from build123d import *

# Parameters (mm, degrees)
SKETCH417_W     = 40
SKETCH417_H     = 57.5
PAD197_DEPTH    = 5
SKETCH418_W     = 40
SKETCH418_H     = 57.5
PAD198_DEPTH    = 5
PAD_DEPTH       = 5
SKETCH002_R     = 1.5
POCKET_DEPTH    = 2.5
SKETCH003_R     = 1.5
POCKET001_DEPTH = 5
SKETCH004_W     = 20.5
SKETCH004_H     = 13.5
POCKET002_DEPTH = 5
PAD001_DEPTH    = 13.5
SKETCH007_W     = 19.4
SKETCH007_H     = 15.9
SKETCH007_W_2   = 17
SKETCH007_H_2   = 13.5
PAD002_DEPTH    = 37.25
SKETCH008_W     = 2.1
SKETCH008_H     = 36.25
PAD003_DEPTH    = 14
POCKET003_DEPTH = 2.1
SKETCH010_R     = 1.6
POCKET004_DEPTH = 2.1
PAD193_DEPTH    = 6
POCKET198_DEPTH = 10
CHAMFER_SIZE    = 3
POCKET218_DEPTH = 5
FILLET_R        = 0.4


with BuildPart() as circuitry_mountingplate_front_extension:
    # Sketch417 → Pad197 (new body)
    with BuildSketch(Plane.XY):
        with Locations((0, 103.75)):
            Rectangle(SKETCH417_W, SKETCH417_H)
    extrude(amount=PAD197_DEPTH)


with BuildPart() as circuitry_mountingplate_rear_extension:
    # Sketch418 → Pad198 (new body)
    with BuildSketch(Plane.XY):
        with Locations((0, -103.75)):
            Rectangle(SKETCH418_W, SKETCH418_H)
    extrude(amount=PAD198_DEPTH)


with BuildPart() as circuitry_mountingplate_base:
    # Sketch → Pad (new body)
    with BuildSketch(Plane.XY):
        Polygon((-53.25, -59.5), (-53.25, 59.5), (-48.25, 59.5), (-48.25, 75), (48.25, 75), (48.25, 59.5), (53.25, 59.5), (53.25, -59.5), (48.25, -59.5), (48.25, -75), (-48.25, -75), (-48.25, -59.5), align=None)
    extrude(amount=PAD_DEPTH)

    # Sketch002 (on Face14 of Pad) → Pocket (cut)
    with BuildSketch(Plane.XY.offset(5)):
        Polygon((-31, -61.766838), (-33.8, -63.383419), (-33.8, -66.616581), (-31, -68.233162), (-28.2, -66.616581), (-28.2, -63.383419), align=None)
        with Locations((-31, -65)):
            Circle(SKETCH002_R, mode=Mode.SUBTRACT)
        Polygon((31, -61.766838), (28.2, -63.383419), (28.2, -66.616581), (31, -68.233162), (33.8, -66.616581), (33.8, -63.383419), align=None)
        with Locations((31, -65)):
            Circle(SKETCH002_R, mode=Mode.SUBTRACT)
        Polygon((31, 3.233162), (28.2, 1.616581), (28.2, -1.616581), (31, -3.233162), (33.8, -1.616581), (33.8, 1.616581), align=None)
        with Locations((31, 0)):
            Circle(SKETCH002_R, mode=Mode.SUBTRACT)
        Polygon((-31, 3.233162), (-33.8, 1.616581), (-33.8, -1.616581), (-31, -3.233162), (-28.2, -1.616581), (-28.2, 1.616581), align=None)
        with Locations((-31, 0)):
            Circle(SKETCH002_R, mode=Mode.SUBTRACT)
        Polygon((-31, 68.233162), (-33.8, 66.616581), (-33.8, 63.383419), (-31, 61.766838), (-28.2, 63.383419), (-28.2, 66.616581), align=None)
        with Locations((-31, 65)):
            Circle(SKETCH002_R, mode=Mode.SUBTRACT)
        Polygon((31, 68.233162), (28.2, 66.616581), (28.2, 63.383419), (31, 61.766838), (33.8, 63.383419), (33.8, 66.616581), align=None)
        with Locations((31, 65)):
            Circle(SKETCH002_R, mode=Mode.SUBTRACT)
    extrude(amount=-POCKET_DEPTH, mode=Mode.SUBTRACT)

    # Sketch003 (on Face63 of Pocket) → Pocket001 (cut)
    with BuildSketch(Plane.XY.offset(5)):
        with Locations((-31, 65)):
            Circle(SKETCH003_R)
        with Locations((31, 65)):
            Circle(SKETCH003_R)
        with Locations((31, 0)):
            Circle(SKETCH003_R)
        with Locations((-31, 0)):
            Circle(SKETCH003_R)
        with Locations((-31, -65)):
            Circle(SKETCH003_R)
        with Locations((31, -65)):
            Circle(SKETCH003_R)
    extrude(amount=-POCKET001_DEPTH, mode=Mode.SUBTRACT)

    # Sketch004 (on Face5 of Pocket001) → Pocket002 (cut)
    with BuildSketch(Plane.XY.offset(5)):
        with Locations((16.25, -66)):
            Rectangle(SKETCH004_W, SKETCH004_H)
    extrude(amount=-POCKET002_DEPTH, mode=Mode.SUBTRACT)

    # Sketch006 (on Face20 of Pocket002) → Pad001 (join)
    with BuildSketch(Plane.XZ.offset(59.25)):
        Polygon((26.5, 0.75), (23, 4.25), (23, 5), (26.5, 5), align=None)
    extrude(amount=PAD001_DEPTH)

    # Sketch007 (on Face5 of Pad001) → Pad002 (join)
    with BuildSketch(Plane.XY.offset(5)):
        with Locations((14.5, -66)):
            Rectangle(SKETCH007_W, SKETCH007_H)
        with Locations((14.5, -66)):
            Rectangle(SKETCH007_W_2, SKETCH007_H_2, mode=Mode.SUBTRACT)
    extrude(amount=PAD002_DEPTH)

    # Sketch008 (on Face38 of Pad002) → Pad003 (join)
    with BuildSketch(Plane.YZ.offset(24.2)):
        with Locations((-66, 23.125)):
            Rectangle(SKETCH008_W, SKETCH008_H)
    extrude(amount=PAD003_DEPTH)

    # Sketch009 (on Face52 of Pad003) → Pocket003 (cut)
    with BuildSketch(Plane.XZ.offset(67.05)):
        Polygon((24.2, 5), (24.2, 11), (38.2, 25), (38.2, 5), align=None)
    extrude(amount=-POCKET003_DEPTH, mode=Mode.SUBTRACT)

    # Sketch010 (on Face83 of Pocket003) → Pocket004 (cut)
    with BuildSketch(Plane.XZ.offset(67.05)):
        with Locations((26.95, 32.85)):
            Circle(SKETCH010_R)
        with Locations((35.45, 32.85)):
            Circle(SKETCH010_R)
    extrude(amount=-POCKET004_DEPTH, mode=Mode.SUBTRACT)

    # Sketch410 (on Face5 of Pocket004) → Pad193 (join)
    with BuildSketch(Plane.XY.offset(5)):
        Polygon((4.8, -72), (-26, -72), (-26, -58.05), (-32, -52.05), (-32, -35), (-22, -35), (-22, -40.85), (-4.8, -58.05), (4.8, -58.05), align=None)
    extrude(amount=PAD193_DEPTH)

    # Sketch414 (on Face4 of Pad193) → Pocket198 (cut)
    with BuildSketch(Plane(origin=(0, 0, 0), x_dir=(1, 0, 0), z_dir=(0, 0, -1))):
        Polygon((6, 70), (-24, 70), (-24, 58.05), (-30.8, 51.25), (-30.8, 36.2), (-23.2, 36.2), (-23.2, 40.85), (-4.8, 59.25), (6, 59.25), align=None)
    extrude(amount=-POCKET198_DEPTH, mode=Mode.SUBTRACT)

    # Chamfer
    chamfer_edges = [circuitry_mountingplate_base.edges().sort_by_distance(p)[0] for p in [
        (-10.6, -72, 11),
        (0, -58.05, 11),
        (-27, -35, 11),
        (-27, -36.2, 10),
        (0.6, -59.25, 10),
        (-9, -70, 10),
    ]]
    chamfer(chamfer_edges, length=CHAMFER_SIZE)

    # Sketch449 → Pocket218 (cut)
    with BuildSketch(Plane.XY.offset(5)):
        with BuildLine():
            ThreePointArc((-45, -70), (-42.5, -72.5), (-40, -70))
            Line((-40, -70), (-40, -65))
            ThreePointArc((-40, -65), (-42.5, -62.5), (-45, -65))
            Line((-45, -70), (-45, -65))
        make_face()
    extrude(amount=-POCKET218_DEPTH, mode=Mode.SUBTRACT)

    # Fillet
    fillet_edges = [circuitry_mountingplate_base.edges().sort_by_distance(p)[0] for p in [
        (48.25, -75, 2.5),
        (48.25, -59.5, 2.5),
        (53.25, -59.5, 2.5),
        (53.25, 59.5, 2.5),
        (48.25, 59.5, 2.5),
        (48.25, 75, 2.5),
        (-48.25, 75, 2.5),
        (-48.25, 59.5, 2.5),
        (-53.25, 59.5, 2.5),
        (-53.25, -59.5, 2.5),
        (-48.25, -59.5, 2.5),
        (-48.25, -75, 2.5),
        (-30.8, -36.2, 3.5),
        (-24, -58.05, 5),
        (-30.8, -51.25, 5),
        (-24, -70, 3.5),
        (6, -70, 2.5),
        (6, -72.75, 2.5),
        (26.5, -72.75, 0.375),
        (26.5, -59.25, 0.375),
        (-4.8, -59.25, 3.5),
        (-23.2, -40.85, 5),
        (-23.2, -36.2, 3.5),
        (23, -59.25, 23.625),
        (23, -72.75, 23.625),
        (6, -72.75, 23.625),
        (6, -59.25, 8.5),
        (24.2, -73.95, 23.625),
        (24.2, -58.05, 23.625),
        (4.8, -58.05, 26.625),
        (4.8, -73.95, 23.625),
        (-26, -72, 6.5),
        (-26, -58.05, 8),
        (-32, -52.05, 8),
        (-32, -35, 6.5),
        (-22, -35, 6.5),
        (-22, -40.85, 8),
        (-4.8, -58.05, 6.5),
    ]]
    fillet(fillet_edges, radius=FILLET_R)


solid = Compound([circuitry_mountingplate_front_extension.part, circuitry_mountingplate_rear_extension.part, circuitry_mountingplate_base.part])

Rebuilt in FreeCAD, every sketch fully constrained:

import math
import FreeCAD as App
import Part
import Sketcher
Q = App.Units.Quantity


def edges_at(feature, points):
    """Names of the edges that pass closest to the given points."""
    edges = feature.Shape.Edges
    near = lambda p: min(range(len(edges)), key=lambda i: edges[i].distToShape(Part.Vertex(*p))[0])
    return sorted({f"Edge{near(p) + 1}" for p in points})


def add_polygon(sketch, points):
    """Adds a closed chain of lines whose ends are joined by coincident constraints."""
    first, n = sketch.GeometryCount, len(points)
    for a, b in zip(points, points[1:] + points[:1]):
        sketch.addGeometry(Part.LineSegment(App.Vector(*a, 0), App.Vector(*b, 0)), False)
    for i in range(n):
        sketch.addConstraint(Sketcher.Constraint("Coincident", first + i, 2, first + (i + 1) % n, 1))

doc = App.newDocument("Part")
params = doc.addObject("Spreadsheet::Sheet", "Params")
for row, (alias, value) in enumerate([
    ("sketch1_width", "40 mm"),
    ("sketch1_height", "57.5 mm"),
    ("pad1_length", "5 mm"),
    ("sketch2_width", "40 mm"),
    ("sketch2_height", "57.5 mm"),
    ("pad2_length", "5 mm"),
    ("sketch3_width", "5 mm"),
    ("sketch3_height", "119 mm"),
    ("sketch3_width2", "96.5 mm"),
    ("sketch3_height2", "15.5 mm"),
    ("pad3_length", "5 mm"),
    ("sketch4_diameter", "3 mm"),
    ("pocket1_length", "2.5 mm"),
    ("sketch5_diameter", "3 mm"),
    ("pocket2_length", "5 mm"),
    ("sketch6_width", "20.5 mm"),
    ("sketch6_height", "13.5 mm"),
    ("pocket3_length", "5 mm"),
    ("sketch7_width", "3.5 mm"),
    ("sketch7_height", "4.25 mm"),
    ("pad4_length", "13.5 mm"),
    ("sketch8_width", "17 mm"),
    ("sketch8_width2", "19.4 mm"),
    ("sketch8_height", "15.9 mm"),
    ("sketch8_height2", "13.5 mm"),
    ("pad5_length", "37.25 mm"),
    ("sketch9_width", "2.1 mm"),
    ("sketch9_height", "36.25 mm"),
    ("pad6_length", "14 mm"),
    ("sketch10_width", "14 mm"),
    ("sketch10_height", "6 mm"),
    ("sketch10_height2", "20 mm"),
    ("pocket4_length", "2.1 mm"),
    ("sketch11_diameter", "3.2 mm"),
    ("pocket5_length", "2.1 mm"),
    ("sketch12_width", "10 mm"),
    ("sketch12_width2", "30.8 mm"),
    ("sketch12_width3", "9.6 mm"),
    ("sketch12_height", "13.95 mm"),
    ("pad7_length", "6 mm"),
    ("sketch13_width", "30 mm"),
    ("sketch13_width2", "7.6 mm"),
    ("sketch13_width3", "10.8 mm"),
    ("sketch13_height", "11.95 mm"),
    ("sketch13_height2", "15.05 mm"),
    ("pocket6_length", "10 mm"),
    ("chamfer_size", "3 mm"),
    ("sketch14_radius", "2.5 mm"),
    ("sketch14_height", "5 mm"),
    ("pocket7_length", "5 mm"),
    ("fillet_radius", "0.4 mm"),
], start=1):
    params.set(f"A{row}", alias)
    params.set(f"B{row}", "=" + value)
    params.setAlias(f"B{row}", alias)

body = doc.addObject("PartDesign::Body", "Body")

sketch1 = body.newObject("Sketcher::SketchObject", "Sketch")
sketch1.AttachmentSupport = (doc.getObject("XY_Plane"), [""])
sketch1.MapMode = "FlatFace"
add_polygon(sketch1, [(-20, 132.5), (-20, 75), (20, 75), (20, 132.5)])
sketch1.addConstraint([
    Sketcher.Constraint("Vertical", 0),
    Sketcher.Constraint("Horizontal", 1),
    Sketcher.Constraint("Vertical", 2),
    Sketcher.Constraint("Horizontal", 3),
    Sketcher.Constraint("DistanceX", 1, 1, 1, 2, 40.0),
    Sketcher.Constraint("DistanceY", 0, 2, 0, 1, 57.5),
    Sketcher.Constraint("DistanceX", 0, 2, -1, 1, 20.0),
    Sketcher.Constraint("DistanceY", -1, 1, 0, 2, 75.0),
])
sketch1.setExpression("Constraints[8]", "Params.sketch1_width")
sketch1.setExpression("Constraints[9]", "Params.sketch1_height")
pad1 = body.newObject("PartDesign::Pad", "Pad")
pad1.Profile = sketch1
pad1.setExpression("Length", "Params.pad1_length")
body2 = doc.addObject("PartDesign::Body", "Body001")

sketch2 = body2.newObject("Sketcher::SketchObject", "Sketch001")
sketch2.AttachmentSupport = (doc.getObject("XY_Plane001"), [""])
sketch2.MapMode = "FlatFace"
add_polygon(sketch2, [(-20, -75), (-20, -132.5), (20, -132.5), (20, -75)])
sketch2.addConstraint([
    Sketcher.Constraint("Vertical", 0),
    Sketcher.Constraint("Horizontal", 1),
    Sketcher.Constraint("Vertical", 2),
    Sketcher.Constraint("Horizontal", 3),
    Sketcher.Constraint("DistanceX", 1, 1, 1, 2, 40.0),
    Sketcher.Constraint("DistanceY", 0, 2, 0, 1, 57.5),
    Sketcher.Constraint("DistanceX", 0, 2, -1, 1, 20.0),
    Sketcher.Constraint("DistanceY", 2, 2, -1, 1, 75.0),
])
sketch2.setExpression("Constraints[8]", "Params.sketch2_width")
sketch2.setExpression("Constraints[9]", "Params.sketch2_height")
pad2 = body2.newObject("PartDesign::Pad", "Pad001")
pad2.Profile = sketch2
pad2.setExpression("Length", "Params.pad2_length")
body3 = doc.addObject("PartDesign::Body", "Body002")

sketch3 = body3.newObject("Sketcher::SketchObject", "Sketch002")
sketch3.AttachmentSupport = (doc.getObject("XY_Plane002"), [""])
sketch3.MapMode = "FlatFace"
add_polygon(sketch3, [(-53.25, 59.5), (-53.25, -59.5), (-48.25, -59.5), (-48.25, -75), (48.25, -75), (48.25, -59.5), (53.25, -59.5), (53.25, 59.5), (48.25, 59.5), (48.25, 75), (-48.25, 75), (-48.25, 59.5)])
sketch3.addConstraint([
    Sketcher.Constraint("Vertical", 0),
    Sketcher.Constraint("Horizontal", 1),
    Sketcher.Constraint("Vertical", 2),
    Sketcher.Constraint("Horizontal", 3),
    Sketcher.Constraint("Vertical", 4),
    Sketcher.Constraint("Horizontal", 5),
    Sketcher.Constraint("Vertical", 6),
    Sketcher.Constraint("Horizontal", 7),
    Sketcher.Constraint("Vertical", 8),
    Sketcher.Constraint("Horizontal", 9),
    Sketcher.Constraint("Vertical", 10),
    Sketcher.Constraint("Horizontal", 11),
    Sketcher.Constraint("Symmetric", 0, 2, 6, 2, -1, 1),
    Sketcher.Constraint("Symmetric", 2, 2, 8, 2, -1, 1),
    Sketcher.Constraint("Symmetric", 4, 2, 10, 2, -1, 1),
    Sketcher.Constraint("Symmetric", 1, 2, 4, 2, -2),
    Sketcher.Constraint("DistanceX", 1, 1, 1, 2, 5.0),
    Sketcher.Constraint("DistanceY", 0, 2, 0, 1, 119.0),
    Sketcher.Constraint("DistanceX", 3, 1, 3, 2, 96.5),
    Sketcher.Constraint("DistanceY", 2, 2, 2, 1, 15.5),
])
sketch3.setExpression("Constraints[28]", "Params.sketch3_width")
sketch3.setExpression("Constraints[29]", "Params.sketch3_height")
sketch3.setExpression("Constraints[30]", "Params.sketch3_width2")
sketch3.setExpression("Constraints[31]", "Params.sketch3_height2")
pad3 = body3.newObject("PartDesign::Pad", "Pad002")
pad3.Profile = sketch3
pad3.setExpression("Length", "Params.pad3_length")

sketch4 = body3.newObject("Sketcher::SketchObject", "Sketch003")
sketch4.AttachmentSupport = (doc.getObject("XY_Plane002"), [""])
sketch4.MapMode = "FlatFace"
sketch4.AttachmentOffset = App.Placement(App.Vector(0, 0, 5), App.Rotation())
add_polygon(sketch4, [(-31, -61.766838), (-33.8, -63.383419), (-33.8, -66.616581), (-31, -68.233162), (-28.2, -66.616581), (-28.2, -63.383419)])
sketch4.addGeometry(Part.Circle(App.Vector(-31, -65, 0), App.Vector(0, 0, 1), 1.5), False)
add_polygon(sketch4, [(31, -61.766838), (28.2, -63.383419), (28.2, -66.616581), (31, -68.233162), (33.8, -66.616581), (33.8, -63.383419)])
sketch4.addGeometry(Part.Circle(App.Vector(31, -65, 0), App.Vector(0, 0, 1), 1.5), False)
add_polygon(sketch4, [(31, 3.233162), (28.2, 1.616581), (28.2, -1.616581), (31, -3.233162), (33.8, -1.616581), (33.8, 1.616581)])
sketch4.addGeometry(Part.Circle(App.Vector(31, 0, 0), App.Vector(0, 0, 1), 1.5), False)
add_polygon(sketch4, [(-31, 3.233162), (-33.8, 1.616581), (-33.8, -1.616581), (-31, -3.233162), (-28.2, -1.616581), (-28.2, 1.616581)])
sketch4.addGeometry(Part.Circle(App.Vector(-31, 0, 0), App.Vector(0, 0, 1), 1.5), False)
add_polygon(sketch4, [(-31, 68.233162), (-33.8, 66.616581), (-33.8, 63.383419), (-31, 61.766838), (-28.2, 63.383419), (-28.2, 66.616581)])
sketch4.addGeometry(Part.Circle(App.Vector(-31, 65, 0), App.Vector(0, 0, 1), 1.5), False)
add_polygon(sketch4, [(31, 68.233162), (28.2, 66.616581), (28.2, 63.383419), (31, 61.766838), (33.8, 63.383419), (33.8, 66.616581)])
sketch4.addGeometry(Part.Circle(App.Vector(31, 65, 0), App.Vector(0, 0, 1), 1.5), False)
sketch4.addConstraint([
    Sketcher.Constraint("Vertical", 1),
    Sketcher.Constraint("Vertical", 4),
    Sketcher.Constraint("Vertical", 8),
    Sketcher.Constraint("Vertical", 11),
    Sketcher.Constraint("Vertical", 15),
    Sketcher.Constraint("Vertical", 18),
    Sketcher.Constraint("Vertical", 22),
    Sketcher.Constraint("Vertical", 25),
    Sketcher.Constraint("Vertical", 29),
    Sketcher.Constraint("Vertical", 32),
    Sketcher.Constraint("Vertical", 36),
    Sketcher.Constraint("Vertical", 39),
    Sketcher.Constraint("Equal", 6, 13),
    Sketcher.Constraint("Equal", 13, 20),
    Sketcher.Constraint("Equal", 20, 27),
    Sketcher.Constraint("Equal", 27, 34),
    Sketcher.Constraint("Equal", 34, 41),
    Sketcher.Constraint("Symmetric", 20, 3, 27, 3, -1, 1),
    Sketcher.Constraint("Symmetric", 13, 3, 34, 3, -1, 1),
    Sketcher.Constraint("Symmetric", 6, 3, 41, 3, -1, 1),
    Sketcher.Constraint("Symmetric", 17, 2, 21, 2, -1, 1),
    Sketcher.Constraint("Symmetric", 19, 2, 23, 2, -1, 1),
    Sketcher.Constraint("Symmetric", 14, 2, 24, 2, -1, 1),
    Sketcher.Constraint("Symmetric", 16, 2, 26, 2, -1, 1),
    Sketcher.Constraint("Symmetric", 10, 2, 28, 2, -1, 1),
    Sketcher.Constraint("Symmetric", 12, 2, 30, 2, -1, 1),
    Sketcher.Constraint("Symmetric", 7, 2, 31, 2, -1, 1),
    Sketcher.Constraint("Symmetric", 9, 2, 33, 2, -1, 1),
    Sketcher.Constraint("Symmetric", 3, 2, 35, 2, -1, 1),
    Sketcher.Constraint("Symmetric", 5, 2, 37, 2, -1, 1),
    Sketcher.Constraint("Symmetric", 0, 2, 38, 2, -1, 1),
    Sketcher.Constraint("Symmetric", 2, 2, 40, 2, -1, 1),
    Sketcher.Constraint("Symmetric", 6, 3, 13, 3, -2),
    Sketcher.Constraint("Symmetric", 4, 2, 7, 2, -2),
    Sketcher.Constraint("Symmetric", 2, 2, 9, 2, -2),
    Sketcher.Constraint("Symmetric", 1, 2, 10, 2, -2),
    Sketcher.Constraint("Symmetric", 5, 2, 12, 2, -2),
    Sketcher.Constraint("Symmetric", 16, 2, 23, 2, -2),
    Sketcher.Constraint("PointOnObject", 20, 3, -1),
    Sketcher.Constraint("Parallel", 0, 3),
    Sketcher.Constraint("Parallel", 2, 5),
    Sketcher.Constraint("Parallel", 3, 7),
    Sketcher.Constraint("Parallel", 5, 9),
    Sketcher.Constraint("Parallel", 9, 12),
    Sketcher.Constraint("Parallel", 10, 14),
    Sketcher.Constraint("Parallel", 12, 16),
    Sketcher.Constraint("Parallel", 14, 17),
    Sketcher.Constraint("Parallel", 16, 19),
    Sketcher.Constraint("Parallel", 19, 23),
    Sketcher.Constraint("Parallel", 23, 26),
    Sketcher.Constraint("Parallel", 26, 30),
    Sketcher.Constraint("Parallel", 30, 33),
    Sketcher.Constraint("Parallel", 33, 37),
    Sketcher.Constraint("Parallel", 37, 40),
    Sketcher.Constraint("Horizontal", 1, 2, 3, 2),
    Sketcher.Constraint("Horizontal", 0, 2, 4, 2),
    Sketcher.Constraint("Horizontal", 15, 2, 17, 2),
    Sketcher.Constraint("Vertical", 13, 3, 20, 3),
    Sketcher.Constraint("Vertical", 34, 3, 2, 2),
    Sketcher.Constraint("Vertical", 8, 2, 14, 2),
    Sketcher.Constraint("Vertical", 12, 2, 16, 2),
    Sketcher.Constraint("Equal", 11, 15),
    Sketcher.Constraint("Diameter", 6, 3.0),
    Sketcher.Constraint("Angle", 0, Q("-149.999996 deg")),
    Sketcher.Constraint("DistanceX", 6, 3, -1, 1, 31.0),
    Sketcher.Constraint("DistanceY", 6, 3, -1, 1, 65.0),
    Sketcher.Constraint("DistanceY", 7, 2, 14, 2, 65.0),
    Sketcher.Constraint("DistanceX", 0, 2, -1, 1, 33.8),
    Sketcher.Constraint("DistanceY", 1, 2, 1, 1, 3.233162),
])
sketch4.setExpression("Constraints[98]", "Params.sketch4_diameter")
pocket1 = body3.newObject("PartDesign::Pocket", "Pocket")
pocket1.Profile = sketch4
pocket1.setExpression("Length", "Params.pocket1_length")

sketch5 = body3.newObject("Sketcher::SketchObject", "Sketch004")
sketch5.AttachmentSupport = (doc.getObject("XY_Plane002"), [""])
sketch5.MapMode = "FlatFace"
sketch5.AttachmentOffset = App.Placement(App.Vector(0, 0, 5), App.Rotation())
sketch5.addGeometry([
    Part.Circle(App.Vector(-31, 65, 0), App.Vector(0, 0, 1), 1.5),
    Part.Circle(App.Vector(31, 65, 0), App.Vector(0, 0, 1), 1.5),
    Part.Circle(App.Vector(31, 0, 0), App.Vector(0, 0, 1), 1.5),
    Part.Circle(App.Vector(-31, 0, 0), App.Vector(0, 0, 1), 1.5),
    Part.Circle(App.Vector(-31, -65, 0), App.Vector(0, 0, 1), 1.5),
    Part.Circle(App.Vector(31, -65, 0), App.Vector(0, 0, 1), 1.5),
], False)
sketch5.addConstraint([
    Sketcher.Constraint("Equal", 0, 1),
    Sketcher.Constraint("Equal", 1, 2),
    Sketcher.Constraint("Equal", 2, 3),
    Sketcher.Constraint("Equal", 3, 4),
    Sketcher.Constraint("Equal", 4, 5),
    Sketcher.Constraint("Symmetric", 2, 3, 3, 3, -1, 1),
    Sketcher.Constraint("Symmetric", 1, 3, 4, 3, -1, 1),
    Sketcher.Constraint("Symmetric", 0, 3, 5, 3, -1, 1),
    Sketcher.Constraint("Symmetric", 0, 3, 1, 3, -2),
    Sketcher.Constraint("PointOnObject", 2, 3, -1),
    Sketcher.Constraint("Vertical", 1, 3, 2, 3),
    Sketcher.Constraint("Diameter", 0, 3.0),
    Sketcher.Constraint("DistanceX", 0, 3, -1, 1, 31.0),
    Sketcher.Constraint("DistanceY", -1, 1, 0, 3, 65.0),
])
sketch5.setExpression("Constraints[11]", "Params.sketch5_diameter")
pocket2 = body3.newObject("PartDesign::Pocket", "Pocket001")
pocket2.Profile = sketch5
pocket2.setExpression("Length", "Params.pocket2_length")

sketch6 = body3.newObject("Sketcher::SketchObject", "Sketch005")
sketch6.AttachmentSupport = (doc.getObject("XY_Plane002"), [""])
sketch6.MapMode = "FlatFace"
sketch6.AttachmentOffset = App.Placement(App.Vector(0, 0, 5), App.Rotation())
add_polygon(sketch6, [(6, -59.25), (6, -72.75), (26.5, -72.75), (26.5, -59.25)])
sketch6.addConstraint([
    Sketcher.Constraint("Vertical", 0),
    Sketcher.Constraint("Horizontal", 1),
    Sketcher.Constraint("Vertical", 2),
    Sketcher.Constraint("Horizontal", 3),
    Sketcher.Constraint("DistanceX", 1, 1, 1, 2, 20.5),
    Sketcher.Constraint("DistanceY", 0, 2, 0, 1, 13.5),
    Sketcher.Constraint("DistanceX", -1, 1, 0, 2, 6.0),
    Sketcher.Constraint("DistanceY", 0, 2, -1, 1, 72.75),
])
sketch6.setExpression("Constraints[8]", "Params.sketch6_width")
sketch6.setExpression("Constraints[9]", "Params.sketch6_height")
pocket3 = body3.newObject("PartDesign::Pocket", "Pocket002")
pocket3.Profile = sketch6
pocket3.setExpression("Length", "Params.pocket3_length")

sketch7 = body3.newObject("Sketcher::SketchObject", "Sketch006")
sketch7.AttachmentSupport = (doc.getObject("XZ_Plane002"), [""])
sketch7.MapMode = "FlatFace"
sketch7.AttachmentOffset = App.Placement(App.Vector(0, 0, 59.25), App.Rotation())
add_polygon(sketch7, [(23, 4.25), (26.5, 0.75), (26.5, 5), (23, 5)])
sketch7.addConstraint([
    Sketcher.Constraint("Vertical", 1),
    Sketcher.Constraint("Horizontal", 2),
    Sketcher.Constraint("Vertical", 3),
    Sketcher.Constraint("Angle", 0, Q("-45 deg")),
    Sketcher.Constraint("DistanceX", 2, 2, 2, 1, 3.5),
    Sketcher.Constraint("DistanceY", -1, 1, 1, 2, 5.0),
    Sketcher.Constraint("DistanceX", -1, 1, 2, 2, 23.0),
    Sketcher.Constraint("DistanceY", 1, 1, 1, 2, 4.25),
])
sketch7.setExpression("Constraints[8]", "Params.sketch7_width")
sketch7.setExpression("Constraints[11]", "Params.sketch7_height")
pad4 = body3.newObject("PartDesign::Pad", "Pad003")
pad4.Profile = sketch7
pad4.setExpression("Length", "Params.pad4_length")

sketch8 = body3.newObject("Sketcher::SketchObject", "Sketch007")
sketch8.AttachmentSupport = (doc.getObject("XY_Plane002"), [""])
sketch8.MapMode = "FlatFace"
sketch8.AttachmentOffset = App.Placement(App.Vector(0, 0, 5), App.Rotation())
add_polygon(sketch8, [(4.8, -58.05), (4.8, -73.95), (24.2, -73.95), (24.2, -58.05)])
add_polygon(sketch8, [(23, -72.75), (6, -72.75), (6, -59.25), (23, -59.25)])
sketch8.addConstraint([
    Sketcher.Constraint("Vertical", 0),
    Sketcher.Constraint("Horizontal", 1),
    Sketcher.Constraint("Vertical", 2),
    Sketcher.Constraint("Horizontal", 3),
    Sketcher.Constraint("Horizontal", 4),
    Sketcher.Constraint("Vertical", 5),
    Sketcher.Constraint("Horizontal", 6),
    Sketcher.Constraint("Vertical", 7),
    Sketcher.Constraint("DistanceX", 4, 2, 4, 1, 17.0),
    Sketcher.Constraint("DistanceX", 1, 1, 1, 2, 19.4),
    Sketcher.Constraint("DistanceY", 0, 2, 0, 1, 15.9),
    Sketcher.Constraint("DistanceY", 5, 1, 5, 2, 13.5),
    Sketcher.Constraint("DistanceX", -1, 1, 4, 2, 6.0),
    Sketcher.Constraint("DistanceX", -1, 1, 0, 2, 4.8),
    Sketcher.Constraint("DistanceY", 0, 2, 4, 2, 1.2),
    Sketcher.Constraint("DistanceY", 0, 2, -1, 1, 73.95),
])
sketch8.setExpression("Constraints[16]", "Params.sketch8_width")
sketch8.setExpression("Constraints[17]", "Params.sketch8_width2")
sketch8.setExpression("Constraints[18]", "Params.sketch8_height")
sketch8.setExpression("Constraints[19]", "Params.sketch8_height2")
pad5 = body3.newObject("PartDesign::Pad", "Pad004")
pad5.Profile = sketch8
pad5.setExpression("Length", "Params.pad5_length")

sketch9 = body3.newObject("Sketcher::SketchObject", "Sketch008")
sketch9.AttachmentSupport = (doc.getObject("YZ_Plane002"), [""])
sketch9.MapMode = "FlatFace"
sketch9.AttachmentOffset = App.Placement(App.Vector(0, 0, 24.2), App.Rotation())
add_polygon(sketch9, [(-67.05, 41.25), (-67.05, 5), (-64.95, 5), (-64.95, 41.25)])
sketch9.addConstraint([
    Sketcher.Constraint("Vertical", 0),
    Sketcher.Constraint("Horizontal", 1),
    Sketcher.Constraint("Vertical", 2),
    Sketcher.Constraint("Horizontal", 3),
    Sketcher.Constraint("DistanceX", 1, 1, 1, 2, 2.1),
    Sketcher.Constraint("DistanceY", -1, 1, 0, 2, 5.0),
    Sketcher.Constraint("DistanceY", 0, 2, 0, 1, 36.25),
    Sketcher.Constraint("DistanceX", 0, 2, -1, 1, 67.05),
])
sketch9.setExpression("Constraints[8]", "Params.sketch9_width")
sketch9.setExpression("Constraints[10]", "Params.sketch9_height")
pad6 = body3.newObject("PartDesign::Pad", "Pad005")
pad6.Profile = sketch9
pad6.setExpression("Length", "Params.pad6_length")

sketch10 = body3.newObject("Sketcher::SketchObject", "Sketch009")
sketch10.AttachmentSupport = (doc.getObject("XZ_Plane002"), [""])
sketch10.MapMode = "FlatFace"
sketch10.AttachmentOffset = App.Placement(App.Vector(0, 0, 67.05), App.Rotation())
add_polygon(sketch10, [(24.2, 11), (24.2, 5), (38.2, 5), (38.2, 25)])
sketch10.addConstraint([
    Sketcher.Constraint("Vertical", 0),
    Sketcher.Constraint("Horizontal", 1),
    Sketcher.Constraint("Vertical", 2),
    Sketcher.Constraint("DistanceX", 1, 1, 1, 2, 14.0),
    Sketcher.Constraint("DistanceY", 0, 2, 0, 1, 6.0),
    Sketcher.Constraint("DistanceY", 2, 1, 2, 2, 20.0),
    Sketcher.Constraint("DistanceY", -1, 1, 0, 2, 5.0),
    Sketcher.Constraint("DistanceX", -1, 1, 0, 2, 24.2),
])
sketch10.setExpression("Constraints[7]", "Params.sketch10_width")
sketch10.setExpression("Constraints[8]", "Params.sketch10_height")
sketch10.setExpression("Constraints[9]", "Params.sketch10_height2")
pocket4 = body3.newObject("PartDesign::Pocket", "Pocket003")
pocket4.Profile = sketch10
pocket4.setExpression("Length", "Params.pocket4_length")

sketch11 = body3.newObject("Sketcher::SketchObject", "Sketch010")
sketch11.AttachmentSupport = (doc.getObject("XZ_Plane002"), [""])
sketch11.MapMode = "FlatFace"
sketch11.AttachmentOffset = App.Placement(App.Vector(0, 0, 67.05), App.Rotation())
sketch11.addGeometry([
    Part.Circle(App.Vector(26.95, 32.85, 0), App.Vector(0, 0, 1), 1.6),
    Part.Circle(App.Vector(35.45, 32.85, 0), App.Vector(0, 0, 1), 1.6),
], False)
sketch11.addConstraint([
    Sketcher.Constraint("Equal", 0, 1),
    Sketcher.Constraint("Horizontal", 0, 3, 1, 3),
    Sketcher.Constraint("Diameter", 0, 3.2),
    Sketcher.Constraint("DistanceX", 0, 3, 1, 3, 8.5),
    Sketcher.Constraint("DistanceX", -1, 1, 0, 3, 26.95),
    Sketcher.Constraint("DistanceY", -1, 1, 0, 3, 32.85),
])
sketch11.setExpression("Constraints[2]", "Params.sketch11_diameter")
pocket5 = body3.newObject("PartDesign::Pocket", "Pocket004")
pocket5.Profile = sketch11
pocket5.setExpression("Length", "Params.pocket5_length")

sketch12 = body3.newObject("Sketcher::SketchObject", "Sketch011")
sketch12.AttachmentSupport = (doc.getObject("XY_Plane002"), [""])
sketch12.MapMode = "FlatFace"
sketch12.AttachmentOffset = App.Placement(App.Vector(0, 0, 5), App.Rotation())
add_polygon(sketch12, [(-26, -72), (4.8, -72), (4.8, -58.05), (-4.8, -58.05), (-22, -40.85), (-22, -35), (-32, -35), (-32, -52.05), (-26, -58.05)])
sketch12.addConstraint([
    Sketcher.Constraint("Horizontal", 0),
    Sketcher.Constraint("Vertical", 1),
    Sketcher.Constraint("Horizontal", 2),
    Sketcher.Constraint("Vertical", 4),
    Sketcher.Constraint("Horizontal", 5),
    Sketcher.Constraint("Vertical", 6),
    Sketcher.Constraint("Vertical", 8),
    Sketcher.Constraint("Parallel", 3, 7),
    Sketcher.Constraint("Horizontal", 2, 2, 7, 2),
    Sketcher.Constraint("DistanceX", 5, 2, 5, 1, 10.0),
    Sketcher.Constraint("Angle", 3, Q("135 deg")),
    Sketcher.Constraint("DistanceX", 0, 1, 0, 2, 30.8),
    Sketcher.Constraint("DistanceX", 2, 2, 2, 1, 9.6),
    Sketcher.Constraint("DistanceY", 0, 2, -1, 1, 72.0),
    Sketcher.Constraint("DistanceX", 3, 2, -1, 1, 22.0),
    Sketcher.Constraint("DistanceY", 4, 2, -1, 1, 35.0),
    Sketcher.Constraint("DistanceX", 7, 2, -1, 1, 26.0),
    Sketcher.Constraint("DistanceY", 1, 1, 1, 2, 13.95),
])
sketch12.setExpression("Constraints[18]", "Params.sketch12_width")
sketch12.setExpression("Constraints[20]", "Params.sketch12_width2")
sketch12.setExpression("Constraints[21]", "Params.sketch12_width3")
sketch12.setExpression("Constraints[26]", "Params.sketch12_height")
pad7 = body3.newObject("PartDesign::Pad", "Pad006")
pad7.Profile = sketch12
pad7.setExpression("Length", "Params.pad7_length")

sketch13 = body3.newObject("Sketcher::SketchObject", "Sketch012")
sketch13.AttachmentSupport = (doc.getObject("XY_Plane002"), [""])
sketch13.MapMode = "FlatFace"
add_polygon(sketch13, [(6, -70), (-24, -70), (-24, -58.05), (-30.8, -51.25), (-30.8, -36.2), (-23.2, -36.2), (-23.2, -40.85), (-4.8, -59.25), (6, -59.25)])
sketch13.addConstraint([
    Sketcher.Constraint("Horizontal", 0),
    Sketcher.Constraint("Vertical", 1),
    Sketcher.Constraint("Vertical", 3),
    Sketcher.Constraint("Horizontal", 4),
    Sketcher.Constraint("Vertical", 5),
    Sketcher.Constraint("Horizontal", 7),
    Sketcher.Constraint("Vertical", 8),
    Sketcher.Constraint("Parallel", 2, 6),
    Sketcher.Constraint("DistanceX", 0, 2, 0, 1, 30.0),
    Sketcher.Constraint("Angle", 2, Q("135 deg")),
    Sketcher.Constraint("DistanceX", 4, 1, 4, 2, 7.6),
    Sketcher.Constraint("DistanceX", 7, 1, 7, 2, 10.8),
    Sketcher.Constraint("DistanceX", 0, 2, -1, 1, 24.0),
    Sketcher.Constraint("DistanceY", 0, 2, -1, 1, 70.0),
    Sketcher.Constraint("DistanceX", 2, 2, 6, 2, 26.0),
    Sketcher.Constraint("DistanceY", 6, 2, 2, 2, 8.0),
    Sketcher.Constraint("DistanceY", 1, 1, 1, 2, 11.95),
    Sketcher.Constraint("DistanceY", 3, 1, 3, 2, 15.05),
])
sketch13.setExpression("Constraints[17]", "Params.sketch13_width")
sketch13.setExpression("Constraints[19]", "Params.sketch13_width2")
sketch13.setExpression("Constraints[20]", "Params.sketch13_width3")
sketch13.setExpression("Constraints[25]", "Params.sketch13_height")
sketch13.setExpression("Constraints[26]", "Params.sketch13_height2")
pocket6 = body3.newObject("PartDesign::Pocket", "Pocket005")
pocket6.Profile = sketch13
pocket6.setExpression("Length", "Params.pocket6_length")
pocket6.Reversed = True
doc.recompute()

chamfer = body3.newObject("PartDesign::Chamfer", "Chamfer")
chamfer.Base = (pocket6, edges_at(pocket6, [
    (-10.6, -72, 11),
    (0, -58.05, 11),
    (-27, -35, 11),
    (-27, -36.2, 10),
    (0.6, -59.25, 10),
    (-9, -70, 10),
]))
chamfer.setExpression("Size", "Params.chamfer_size")

sketch14 = body3.newObject("Sketcher::SketchObject", "Sketch013")
sketch14.AttachmentSupport = (doc.getObject("XY_Plane002"), [""])
sketch14.MapMode = "FlatFace"
sketch14.AttachmentOffset = App.Placement(App.Vector(0, 0, 5), App.Rotation())
sketch14.addGeometry([
    Part.ArcOfCircle(Part.Circle(App.Vector(-42.5, -70, 0), App.Vector(0, 0, 1), 2.5), math.radians(180), math.radians(360)),
    Part.LineSegment(App.Vector(-40, -70, 0), App.Vector(-40, -65, 0)),
    Part.ArcOfCircle(Part.Circle(App.Vector(-42.5, -65, 0), App.Vector(0, 0, 1), 2.5), math.radians(0), math.radians(180)),
    Part.LineSegment(App.Vector(-45, -65, 0), App.Vector(-45, -70, 0)),
], False)
sketch14.addConstraint([
    Sketcher.Constraint("Tangent", 0, 2, 1, 1),
    Sketcher.Constraint("Tangent", 1, 2, 2, 1),
    Sketcher.Constraint("Tangent", 2, 2, 3, 1),
    Sketcher.Constraint("Tangent", 3, 2, 0, 1),
    Sketcher.Constraint("Vertical", 1),
    Sketcher.Constraint("Vertical", 3),
    Sketcher.Constraint("Radius", 0, 2.5),
    Sketcher.Constraint("DistanceY", 1, 1, 1, 2, 5.0),
    Sketcher.Constraint("DistanceY", 0, 3, -1, 1, 70.0),
    Sketcher.Constraint("DistanceX", 0, 2, -1, 1, 40.0),
])
sketch14.setExpression("Constraints[6]", "Params.sketch14_radius")
sketch14.setExpression("Constraints[7]", "Params.sketch14_height")
pocket7 = body3.newObject("PartDesign::Pocket", "Pocket006")
pocket7.Profile = sketch14
pocket7.setExpression("Length", "Params.pocket7_length")
doc.recompute()

fillet = body3.newObject("PartDesign::Fillet", "Fillet")
fillet.Base = (pocket7, edges_at(pocket7, [
    (48.25, -75, 2.5),
    (48.25, -59.5, 2.5),
    (53.25, -59.5, 2.5),
    (53.25, 59.5, 2.5),
    (48.25, 59.5, 2.5),
    (48.25, 75, 2.5),
    (-48.25, 75, 2.5),
    (-48.25, 59.5, 2.5),
    (-53.25, 59.5, 2.5),
    (-53.25, -59.5, 2.5),
    (-48.25, -59.5, 2.5),
    (-48.25, -75, 2.5),
    (-30.8, -36.2, 3.5),
    (-24, -58.05, 5),
    (-30.8, -51.25, 5),
    (-24, -70, 3.5),
    (6, -70, 3.5),
    (6, -72.75, 21.125),
    (26.5, -72.75, 0.375),
    (26.5, -59.25, 0.375),
    (-4.8, -59.25, 3.5),
    (-23.2, -40.85, 5),
    (-23.2, -36.2, 3.5),
    (23, -59.25, 23.25),
    (23, -72.75, 23.25),
    (6, -72.75, 21.125),
    (6, -59.25, 24.625),
    (24.2, -73.95, 23.625),
    (24.2, -58.05, 23.625),
    (4.8, -58.05, 25.125),
    (4.8, -73.95, 23.625),
    (-26, -72, 6.5),
    (-26, -58.05, 8),
    (-32, -52.05, 8),
    (-32, -35, 6.5),
    (-22, -35, 6.5),
    (-22, -40.85, 8),
    (-4.8, -58.05, 6.5),
]))
fillet.setExpression("Radius", "Params.fillet_radius")

doc.recompute()
